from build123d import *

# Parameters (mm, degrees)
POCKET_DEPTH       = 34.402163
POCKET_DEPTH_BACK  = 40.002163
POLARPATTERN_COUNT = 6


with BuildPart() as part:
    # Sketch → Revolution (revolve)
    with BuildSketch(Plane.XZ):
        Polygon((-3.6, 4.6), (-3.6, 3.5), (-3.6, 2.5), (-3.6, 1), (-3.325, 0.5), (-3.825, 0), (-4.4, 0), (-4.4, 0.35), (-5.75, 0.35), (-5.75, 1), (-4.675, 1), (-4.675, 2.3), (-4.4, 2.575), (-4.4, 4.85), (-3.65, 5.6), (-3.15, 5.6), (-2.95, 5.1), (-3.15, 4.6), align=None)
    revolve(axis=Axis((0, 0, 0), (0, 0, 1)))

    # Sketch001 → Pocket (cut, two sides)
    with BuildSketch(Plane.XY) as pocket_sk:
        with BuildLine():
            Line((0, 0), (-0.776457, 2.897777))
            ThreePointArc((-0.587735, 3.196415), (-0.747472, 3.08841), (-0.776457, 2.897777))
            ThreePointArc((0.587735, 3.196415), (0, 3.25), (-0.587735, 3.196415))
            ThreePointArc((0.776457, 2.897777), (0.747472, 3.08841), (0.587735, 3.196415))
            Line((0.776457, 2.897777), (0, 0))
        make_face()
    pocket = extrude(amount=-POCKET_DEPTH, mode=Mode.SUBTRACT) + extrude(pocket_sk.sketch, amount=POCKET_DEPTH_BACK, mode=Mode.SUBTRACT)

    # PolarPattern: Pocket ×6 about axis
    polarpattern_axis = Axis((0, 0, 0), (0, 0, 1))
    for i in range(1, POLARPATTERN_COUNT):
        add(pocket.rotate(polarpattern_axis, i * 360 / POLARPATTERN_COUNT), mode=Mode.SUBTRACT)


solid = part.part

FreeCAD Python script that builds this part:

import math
import FreeCAD as App
import Part
import Sketcher

V = App.Vector
Q = App.Units.Quantity


def add_polygon(sketch, points):
    """Adds a closed chain of lines whose ends are joined by coincident constraints."""
    first, n = sketch.GeometryCount, len(points)
    for a, b in zip(points, points[1:] + points[:1]):
        sketch.addGeometry(Part.LineSegment(App.Vector(*a, 0), App.Vector(*b, 0)), False)
    for i in range(n):
        sketch.addConstraint(Sketcher.Constraint("Coincident", first + i, 2, first + (i + 1) % n, 1))

doc = App.newDocument("Part")
body = doc.addObject("PartDesign::Body", "Body")

# Sketch on XZ plane
sketch1 = doc.addObject("Sketcher::SketchObject", "Sketch")
body.addObject(sketch1)
sketch1.AttachmentSupport = (doc.XZ_Plane, [""])
sketch1.MapMode = "FlatFace"
add_polygon(sketch1, [(-3.6, 1), (-3.6, 4.6), (-3.15, 4.6), (-2.95, 5.1), (-3.15, 5.6), (-3.65, 5.6), (-4.4, 4.85), (-4.4, 2.58), (-4.67, 2.3), (-4.67, 1), (-5.75, 1), (-5.75, 0.35), (-4.4, 0.35), (-4.4, 0), (-3.83, 0), (-3.33, 0.5)])  # lines 0-15
sketch1.addConstraint([
    Sketcher.Constraint("Vertical", 0),
    Sketcher.Constraint("Horizontal", 1),
    Sketcher.Constraint("Horizontal", 4),
    Sketcher.Constraint("Vertical", 6),
    Sketcher.Constraint("Vertical", 8),
    Sketcher.Constraint("Horizontal", 9),
    Sketcher.Constraint("Vertical", 10),
    Sketcher.Constraint("Horizontal", 11),
    Sketcher.Constraint("Vertical", 12),
    Sketcher.Constraint("Horizontal", 13),
    Sketcher.Constraint("PointOnObject", 12, 2, -1),
    Sketcher.Constraint("Parallel", 5, 7),
    Sketcher.Constraint("Parallel", 7, 14),
    Sketcher.Constraint("Horizontal", 9, 2, 15, 2),
    Sketcher.Constraint("Vertical", 1, 2, 3, 2),
    Sketcher.Constraint("Vertical", 6, 2, 11, 2),
    Sketcher.Constraint("Equal", 2, 3),
    Sketcher.Constraint("Angle", 5, Q("-135 deg")),
    Sketcher.Constraint("DistanceX", 4, 2, 4, 1, 0.5),
    Sketcher.Constraint("DistanceY", 0, 1, 0, 2, 3.6),
    Sketcher.Constraint("DistanceY", 8, 2, 8, 1, 1.3),
    Sketcher.Constraint("DistanceY", -1, 1, 8, 2, 1.0),
    Sketcher.Constraint("DistanceY", 1, 2, 3, 2, 1.0),
    Sketcher.Constraint("DistanceX", 1, 1, 1, 2, 0.45),
    Sketcher.Constraint("DistanceX", 11, 1, 11, 2, 1.35),
    Sketcher.Constraint("DistanceY", 10, 2, 10, 1, 0.65),
    Sketcher.Constraint("DistanceX", 0, 2, -1, 1, 3.6),
    Sketcher.Constraint("DistanceX", 5, 2, -1, 1, 4.4),
    Sketcher.Constraint("DistanceY", -1, 1, 14, 2, 0.5),
    Sketcher.Constraint("DistanceX", 1, 2, 2, 2, 0.2),
    Sketcher.Constraint("DistanceX", 9, 2, 9, 1, 1.075),
    Sketcher.Constraint("DistanceX", 13, 1, 13, 2, 0.575),
])
revolution = doc.addObject("PartDesign::Revolution", "Revolution")
body.addObject(revolution)
revolution.Profile = sketch1
revolution.ReferenceAxis = (sketch1, ["V_Axis"])
revolution.Angle = 360

# Sketch on XY plane
sketch2 = doc.addObject("Sketcher::SketchObject", "Sketch001")
body.addObject(sketch2)
sketch2.AttachmentSupport = (doc.XY_Plane, [""])
sketch2.MapMode = "FlatFace"
sketch2.addGeometry([
    Part.LineSegment(V(-0.78, 2.9, 0), V(0, 0, 0)),  # 0
    Part.LineSegment(V(0, 0, 0), V(0.78, 2.9, 0)),  # 1
    Part.ArcOfCircle(Part.Circle(V(0.54, 2.96, 0), V(0, 0, 1), 0.24), math.radians(-15), math.radians(80)),  # 2
    Part.ArcOfCircle(Part.Circle(V(0, 0, 0), V(0, 0, 1), 3.25), math.radians(80), math.radians(100)),  # 3
    Part.ArcOfCircle(Part.Circle(V(-0.54, 2.96, 0), V(0, 0, 1), 0.24), math.radians(100), math.radians(195)),  # 4
], False)
sketch2.addConstraint([
    Sketcher.Constraint("Coincident", 0, 2, 1, 1),
    Sketcher.Constraint("Coincident", 1, 2, 2, 1),
    Sketcher.Constraint("Coincident", 2, 2, 3, 1),
    Sketcher.Constraint("Coincident", 3, 2, 4, 1),
    Sketcher.Constraint("Coincident", 4, 2, 0, 1),
    Sketcher.Constraint("Coincident", 0, 2, -1, 1),
    Sketcher.Constraint("Equal", 2, 4),
    Sketcher.Constraint("Symmetric", 2, 3, 4, 3, -2),
    Sketcher.Constraint("Horizontal", 2, 2, 3, 2),
    Sketcher.Constraint("Horizontal", 1, 2, 4, 2),
    Sketcher.Constraint("Angle", 0, Q("-75 deg")),
    Sketcher.Constraint("Distance", 0, 3.0),
    Sketcher.Constraint("Radius", 3, 3.250012),
    Sketcher.Constraint("Radius", 2, 0.240386),
    Sketcher.Constraint("DistanceX", -1, 1, 2, 3, 0.544262),
    Sketcher.Constraint("DistanceX", 3, 2, 2, 2, 1.17547),
])
pocket1 = doc.addObject("PartDesign::Pocket", "Pocket")
body.addObject(pocket1)
pocket1.Profile = sketch2
pocket1.Type = "ThroughAll"
pocket1.Midplane = True
doc.recompute()

polarpattern = doc.addObject("PartDesign::PolarPattern", "PolarPattern")
body.addObject(polarpattern)
polarpattern.Originals = [pocket1]
polarpattern.Axis = (doc.Z_Axis, [""])
polarpattern.Angle = 360
polarpattern.Occurrences = 6
body.Tip = polarpattern

doc.recompute()
